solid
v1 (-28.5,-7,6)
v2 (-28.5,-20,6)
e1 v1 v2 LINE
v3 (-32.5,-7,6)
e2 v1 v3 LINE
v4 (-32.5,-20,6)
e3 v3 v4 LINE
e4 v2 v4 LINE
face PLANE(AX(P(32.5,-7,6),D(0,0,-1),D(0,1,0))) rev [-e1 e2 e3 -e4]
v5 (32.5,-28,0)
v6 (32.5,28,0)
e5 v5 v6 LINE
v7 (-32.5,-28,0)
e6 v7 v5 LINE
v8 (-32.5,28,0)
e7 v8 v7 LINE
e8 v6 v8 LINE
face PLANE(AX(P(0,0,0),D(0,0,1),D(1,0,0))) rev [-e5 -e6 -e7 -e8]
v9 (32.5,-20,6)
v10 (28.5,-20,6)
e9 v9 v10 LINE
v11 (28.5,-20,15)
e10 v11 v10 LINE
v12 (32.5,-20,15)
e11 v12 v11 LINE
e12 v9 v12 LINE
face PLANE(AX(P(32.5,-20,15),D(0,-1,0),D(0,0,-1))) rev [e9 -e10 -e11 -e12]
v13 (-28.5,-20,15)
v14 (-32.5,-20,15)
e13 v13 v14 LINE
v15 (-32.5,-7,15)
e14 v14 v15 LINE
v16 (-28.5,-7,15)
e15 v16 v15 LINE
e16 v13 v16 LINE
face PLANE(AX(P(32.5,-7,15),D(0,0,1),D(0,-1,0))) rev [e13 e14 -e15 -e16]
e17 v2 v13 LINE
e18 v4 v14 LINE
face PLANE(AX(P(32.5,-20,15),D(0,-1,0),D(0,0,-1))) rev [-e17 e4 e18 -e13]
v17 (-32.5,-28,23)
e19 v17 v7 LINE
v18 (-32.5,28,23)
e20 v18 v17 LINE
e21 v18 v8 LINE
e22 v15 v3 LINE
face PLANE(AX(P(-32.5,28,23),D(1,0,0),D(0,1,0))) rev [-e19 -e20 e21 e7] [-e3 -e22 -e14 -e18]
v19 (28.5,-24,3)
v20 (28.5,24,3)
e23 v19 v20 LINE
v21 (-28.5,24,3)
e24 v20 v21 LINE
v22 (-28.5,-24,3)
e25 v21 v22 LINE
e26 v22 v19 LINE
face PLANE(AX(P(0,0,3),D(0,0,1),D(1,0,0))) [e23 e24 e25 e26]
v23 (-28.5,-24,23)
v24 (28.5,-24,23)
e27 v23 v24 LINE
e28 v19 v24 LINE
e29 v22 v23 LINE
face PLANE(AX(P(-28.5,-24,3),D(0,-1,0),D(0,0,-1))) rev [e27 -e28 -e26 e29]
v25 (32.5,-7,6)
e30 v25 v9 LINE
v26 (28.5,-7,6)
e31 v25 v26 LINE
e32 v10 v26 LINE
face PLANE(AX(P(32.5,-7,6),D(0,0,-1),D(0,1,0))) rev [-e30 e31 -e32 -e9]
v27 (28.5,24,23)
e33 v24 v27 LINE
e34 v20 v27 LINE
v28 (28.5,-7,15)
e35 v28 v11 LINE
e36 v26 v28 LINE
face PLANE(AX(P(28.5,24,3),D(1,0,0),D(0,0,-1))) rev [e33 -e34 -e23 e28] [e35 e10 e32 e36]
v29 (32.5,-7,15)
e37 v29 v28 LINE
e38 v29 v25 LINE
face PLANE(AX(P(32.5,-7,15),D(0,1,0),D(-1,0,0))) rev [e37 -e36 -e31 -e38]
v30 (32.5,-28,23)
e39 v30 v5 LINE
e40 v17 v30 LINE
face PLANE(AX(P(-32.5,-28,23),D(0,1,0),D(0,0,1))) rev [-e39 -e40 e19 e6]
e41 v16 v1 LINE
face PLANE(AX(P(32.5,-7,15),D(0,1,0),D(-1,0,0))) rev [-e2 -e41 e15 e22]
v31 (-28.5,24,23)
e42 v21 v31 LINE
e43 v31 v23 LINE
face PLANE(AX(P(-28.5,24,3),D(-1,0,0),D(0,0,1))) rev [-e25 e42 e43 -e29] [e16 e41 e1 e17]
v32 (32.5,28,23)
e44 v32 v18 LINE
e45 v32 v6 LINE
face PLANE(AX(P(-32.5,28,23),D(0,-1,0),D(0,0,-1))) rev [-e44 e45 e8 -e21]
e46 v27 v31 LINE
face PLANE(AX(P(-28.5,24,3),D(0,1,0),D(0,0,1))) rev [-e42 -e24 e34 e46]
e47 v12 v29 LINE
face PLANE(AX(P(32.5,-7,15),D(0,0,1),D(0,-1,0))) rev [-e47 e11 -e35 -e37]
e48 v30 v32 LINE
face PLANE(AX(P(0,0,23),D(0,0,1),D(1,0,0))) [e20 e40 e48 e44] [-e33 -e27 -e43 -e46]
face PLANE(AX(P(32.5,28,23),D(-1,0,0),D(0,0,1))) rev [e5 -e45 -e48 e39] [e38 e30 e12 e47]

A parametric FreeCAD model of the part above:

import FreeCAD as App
import Part
import Sketcher

V = App.Vector


def add_polygon(sketch, points):
    """Adds a closed chain of lines whose ends are joined by coincident constraints."""
    first, n = sketch.GeometryCount, len(points)
    for a, b in zip(points, points[1:] + points[:1]):
        sketch.addGeometry(Part.LineSegment(App.Vector(*a, 0), App.Vector(*b, 0)), False)
    for i in range(n):
        sketch.addConstraint(Sketcher.Constraint("Coincident", first + i, 2, first + (i + 1) % n, 1))

doc = App.newDocument("Part")
body = doc.addObject("PartDesign::Body", "Body")

sketch1 = doc.addObject("Sketcher::SketchObject", "Sketch")
body.addObject(sketch1)
sketch1.AttachmentSupport = (doc.XY_Plane, [""])
sketch1.MapMode = "FlatFace"
add_polygon(sketch1, [(-32, 28), (-32, -28), (32, -28), (32, 28)])
sketch1.addConstraint(Sketcher.Constraint("Vertical", 0))
sketch1.addConstraint(Sketcher.Constraint("Horizontal", 1))
sketch1.addConstraint(Sketcher.Constraint("Vertical", 2))
sketch1.addConstraint(Sketcher.Constraint("Horizontal", 3))
sketch1.addConstraint(Sketcher.Constraint("Symmetric", 0, 2, 2, 2, -1, 1))
sketch1.addConstraint(Sketcher.Constraint("DistanceX", 1, 1, 1, 2, 65.0))
sketch1.addConstraint(Sketcher.Constraint("DistanceY", 0, 2, 0, 1, 56.0))
pad1 = doc.addObject("PartDesign::Pad", "Pad")
body.addObject(pad1)
pad1.Profile = sketch1
pad1.Length = 23

sketch2 = doc.addObject("Sketcher::SketchObject", "Sketch001")
body.addObject(sketch2)
sketch2.AttachmentSupport = (doc.XY_Plane, [""])
sketch2.MapMode = "FlatFace"
sketch2.AttachmentOffset = App.Placement(V(0, 0, 23), App.Rotation())
add_polygon(sketch2, [(-28, 24), (-28, -24), (28, -24), (28, 24)])
sketch2.addConstraint(Sketcher.Constraint("Vertical", 0))
sketch2.addConstraint(Sketcher.Constraint("Horizontal", 1))
sketch2.addConstraint(Sketcher.Constraint("Vertical", 2))
sketch2.addConstraint(Sketcher.Constraint("Horizontal", 3))
sketch2.addConstraint(Sketcher.Constraint("Symmetric", 0, 2, 2, 2, -1, 1))
sketch2.addConstraint(Sketcher.Constraint("DistanceX", 1, 1, 1, 2, 57.0))
sketch2.addConstraint(Sketcher.Constraint("DistanceY", 0, 2, 0, 1, 48.0))
pocket1 = doc.addObject("PartDesign::Pocket", "Pocket")
body.addObject(pocket1)
pocket1.Profile = sketch2
pocket1.Length = 20

sketch3 = doc.addObject("Sketcher::SketchObject", "Sketch002")
body.addObject(sketch3)
sketch3.AttachmentSupport = (doc.YZ_Plane, [""])
sketch3.MapMode = "FlatFace"
sketch3.AttachmentOffset = App.Placement(V(0, 0, -32.5), App.Rotation())
add_polygon(sketch3, [(-7, 6), (-20, 6), (-20, 15), (-7, 15)])
sketch3.addConstraint(Sketcher.Constraint("Horizontal", 0))
sketch3.addConstraint(Sketcher.Constraint("Vertical", 1))
sketch3.addConstraint(Sketcher.Constraint("Horizontal", 2))
sketch3.addConstraint(Sketcher.Constraint("Vertical", 3))
sketch3.addConstraint(Sketcher.Constraint("DistanceX", 0, 2, 0, 1, 13.0))
sketch3.addConstraint(Sketcher.Constraint("DistanceY", 1, 1, 1, 2, 9.0))
sketch3.addConstraint(Sketcher.Constraint("DistanceX", 0, 2, -1, 1, 20.0))
sketch3.addConstraint(Sketcher.Constraint("DistanceY", -1, 1, 0, 2, 6.0))
pocket2 = doc.addObject("PartDesign::Pocket", "Pocket001")
body.addObject(pocket2)
pocket2.Profile = sketch3
pocket2.Type = "ThroughAll"
pocket2.Reversed = True

doc.recompute()
